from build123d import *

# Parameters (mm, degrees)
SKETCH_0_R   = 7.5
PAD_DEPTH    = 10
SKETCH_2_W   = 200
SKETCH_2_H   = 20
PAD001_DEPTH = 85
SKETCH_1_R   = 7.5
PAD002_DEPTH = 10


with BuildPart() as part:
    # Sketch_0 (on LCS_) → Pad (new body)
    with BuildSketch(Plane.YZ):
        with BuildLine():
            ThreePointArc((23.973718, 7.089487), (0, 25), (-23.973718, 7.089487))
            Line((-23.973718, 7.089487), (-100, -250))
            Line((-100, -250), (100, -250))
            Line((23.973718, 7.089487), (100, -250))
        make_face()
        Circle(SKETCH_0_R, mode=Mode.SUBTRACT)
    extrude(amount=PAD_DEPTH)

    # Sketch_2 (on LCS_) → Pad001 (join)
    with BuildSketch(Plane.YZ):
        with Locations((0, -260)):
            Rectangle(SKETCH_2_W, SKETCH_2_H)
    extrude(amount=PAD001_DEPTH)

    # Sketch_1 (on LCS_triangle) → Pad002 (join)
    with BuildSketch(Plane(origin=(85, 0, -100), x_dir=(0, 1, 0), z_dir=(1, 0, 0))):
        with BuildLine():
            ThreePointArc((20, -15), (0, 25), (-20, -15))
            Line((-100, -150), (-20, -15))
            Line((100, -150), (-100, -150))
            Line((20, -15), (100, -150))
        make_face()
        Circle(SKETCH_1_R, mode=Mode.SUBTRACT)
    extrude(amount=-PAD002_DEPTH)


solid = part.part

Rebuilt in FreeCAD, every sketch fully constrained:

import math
import FreeCAD as App
import Part
import Sketcher
from FreeCAD import Vector

doc = App.newDocument("Part")
body = doc.addObject("PartDesign::Body", "Body")

sketch1 = doc.addObject("Sketcher::SketchObject", "Sketch")
body.addObject(sketch1)
sketch1.AttachmentSupport = (doc.YZ_Plane, [""])
sketch1.MapMode = "FlatFace"
sketch1.addGeometry(Part.ArcOfCircle(Part.Circle(Vector(0, 0, 0), Vector(0, 0, 1), 25), math.radians(16), math.radians(164)), False)
sketch1.addGeometry(Part.LineSegment(Vector(-24, 7, 0), Vector(-100, -250, 0)), False)
sketch1.addGeometry(Part.LineSegment(Vector(-100, -250, 0), Vector(100, -250, 0)), False)
sketch1.addGeometry(Part.LineSegment(Vector(100, -250, 0), Vector(24, 7, 0)), False)
sketch1.addGeometry(Part.Circle(Vector(0, 0, 0), Vector(0, 0, 1), 8), False)
sketch1.addConstraint(Sketcher.Constraint("Tangent", 0, 2, 1, 1))
sketch1.addConstraint(Sketcher.Constraint("Coincident", 1, 2, 2, 1))
sketch1.addConstraint(Sketcher.Constraint("Coincident", 2, 2, 3, 1))
sketch1.addConstraint(Sketcher.Constraint("Tangent", 3, 2, 0, 1))
sketch1.addConstraint(Sketcher.Constraint("Horizontal", 2))
sketch1.addConstraint(Sketcher.Constraint("Coincident", 0, 3, -1, 1))
sketch1.addConstraint(Sketcher.Constraint("Coincident", 4, 3, -1, 1))
sketch1.addConstraint(Sketcher.Constraint("Horizontal", 0, 2, 3, 2))
sketch1.addConstraint(Sketcher.Constraint("Diameter", 4, 15.0))
sketch1.addConstraint(Sketcher.Constraint("Radius", 0, 24.999999))
sketch1.addConstraint(Sketcher.Constraint("DistanceX", 2, 1, 2, 2, 200.0))
sketch1.addConstraint(Sketcher.Constraint("DistanceY", 1, 2, -1, 1, 250.0))
pad1 = doc.addObject("PartDesign::Pad", "Pad")
body.addObject(pad1)
pad1.Profile = sketch1
pad1.Length = 10

sketch2 = doc.addObject("Sketcher::SketchObject", "Sketch001")
body.addObject(sketch2)
sketch2.AttachmentSupport = (doc.YZ_Plane, [""])
sketch2.MapMode = "FlatFace"
sketch2.addGeometry(Part.LineSegment(Vector(-100, -250, 0), Vector(-100, -270, 0)), False)
sketch2.addGeometry(Part.LineSegment(Vector(-100, -270, 0), Vector(100, -270, 0)), False)
sketch2.addGeometry(Part.LineSegment(Vector(100, -270, 0), Vector(100, -250, 0)), False)
sketch2.addGeometry(Part.LineSegment(Vector(100, -250, 0), Vector(-100, -250, 0)), False)
sketch2.addConstraint(Sketcher.Constraint("Coincident", 0, 2, 1, 1))
sketch2.addConstraint(Sketcher.Constraint("Coincident", 1, 2, 2, 1))
sketch2.addConstraint(Sketcher.Constraint("Coincident", 2, 2, 3, 1))
sketch2.addConstraint(Sketcher.Constraint("Coincident", 3, 2, 0, 1))
sketch2.addConstraint(Sketcher.Constraint("Vertical", 0))
sketch2.addConstraint(Sketcher.Constraint("Horizontal", 1))
sketch2.addConstraint(Sketcher.Constraint("Vertical", 2))
sketch2.addConstraint(Sketcher.Constraint("Horizontal", 3))
sketch2.addConstraint(Sketcher.Constraint("DistanceX", 1, 1, 1, 2, 200.0))
sketch2.addConstraint(Sketcher.Constraint("DistanceY", 0, 2, 0, 1, 20.0))
sketch2.addConstraint(Sketcher.Constraint("DistanceX", 0, 2, -1, 1, 100.0))
sketch2.addConstraint(Sketcher.Constraint("DistanceY", 0, 2, -1, 1, 270.0))
pad2 = doc.addObject("PartDesign::Pad", "Pad001")
body.addObject(pad2)
pad2.Profile = sketch2
pad2.Length = 85

sketch3 = doc.addObject("Sketcher::SketchObject", "Sketch002")
body.addObject(sketch3)
sketch3.AttachmentSupport = (doc.YZ_Plane, [""])
sketch3.MapMode = "FlatFace"
sketch3.AttachmentOffset = App.Placement(Vector(0, 0, 85), App.Rotation())
sketch3.addGeometry(Part.ArcOfCircle(Part.Circle(Vector(0, -100, 0), Vector(0, 0, 1), 25), math.radians(-37), math.radians(217)), False)
sketch3.addGeometry(Part.LineSegment(Vector(-20, -115, 0), Vector(-100, -250, 0)), False)
sketch3.addGeometry(Part.LineSegment(Vector(-100, -250, 0), Vector(100, -250, 0)), False)
sketch3.addGeometry(Part.LineSegment(Vector(100, -250, 0), Vector(20, -115, 0)), False)
sketch3.addGeometry(Part.Circle(Vector(0, -100, 0), Vector(0, 0, 1), 8), False)
sketch3.addConstraint(Sketcher.Constraint("Coincident", 0, 2, 1, 1))
sketch3.addConstraint(Sketcher.Constraint("Coincident", 1, 2, 2, 1))
sketch3.addConstraint(Sketcher.Constraint("Coincident", 2, 2, 3, 1))
sketch3.addConstraint(Sketcher.Constraint("Coincident", 3, 2, 0, 1))
sketch3.addConstraint(Sketcher.Constraint("Horizontal", 2))
sketch3.addConstraint(Sketcher.Constraint("Coincident", 4, 3, 0, 3))
sketch3.addConstraint(Sketcher.Constraint("Symmetric", 0, 2, 3, 2, -2))
sketch3.addConstraint(Sketcher.Constraint("Equal", 1, 3))
sketch3.addConstraint(Sketcher.Constraint("Diameter", 4, 15.0))
sketch3.addConstraint(Sketcher.Constraint("Radius", 0, 25.0))
sketch3.addConstraint(Sketcher.Constraint("DistanceX", 2, 1, 2, 2, 200.0))
sketch3.addConstraint(Sketcher.Constraint("DistanceY", 0, 3, -1, 1, 100.0))
sketch3.addConstraint(Sketcher.Constraint("DistanceX", 0, 2, -1, 1, 20.0))
sketch3.addConstraint(Sketcher.Constraint("DistanceY", 1, 2, -1, 1, 250.0))
pad3 = doc.addObject("PartDesign::Pad", "Pad002")
body.addObject(pad3)
pad3.Profile = sketch3
pad3.Length = 10
pad3.Reversed = True

doc.recompute()
